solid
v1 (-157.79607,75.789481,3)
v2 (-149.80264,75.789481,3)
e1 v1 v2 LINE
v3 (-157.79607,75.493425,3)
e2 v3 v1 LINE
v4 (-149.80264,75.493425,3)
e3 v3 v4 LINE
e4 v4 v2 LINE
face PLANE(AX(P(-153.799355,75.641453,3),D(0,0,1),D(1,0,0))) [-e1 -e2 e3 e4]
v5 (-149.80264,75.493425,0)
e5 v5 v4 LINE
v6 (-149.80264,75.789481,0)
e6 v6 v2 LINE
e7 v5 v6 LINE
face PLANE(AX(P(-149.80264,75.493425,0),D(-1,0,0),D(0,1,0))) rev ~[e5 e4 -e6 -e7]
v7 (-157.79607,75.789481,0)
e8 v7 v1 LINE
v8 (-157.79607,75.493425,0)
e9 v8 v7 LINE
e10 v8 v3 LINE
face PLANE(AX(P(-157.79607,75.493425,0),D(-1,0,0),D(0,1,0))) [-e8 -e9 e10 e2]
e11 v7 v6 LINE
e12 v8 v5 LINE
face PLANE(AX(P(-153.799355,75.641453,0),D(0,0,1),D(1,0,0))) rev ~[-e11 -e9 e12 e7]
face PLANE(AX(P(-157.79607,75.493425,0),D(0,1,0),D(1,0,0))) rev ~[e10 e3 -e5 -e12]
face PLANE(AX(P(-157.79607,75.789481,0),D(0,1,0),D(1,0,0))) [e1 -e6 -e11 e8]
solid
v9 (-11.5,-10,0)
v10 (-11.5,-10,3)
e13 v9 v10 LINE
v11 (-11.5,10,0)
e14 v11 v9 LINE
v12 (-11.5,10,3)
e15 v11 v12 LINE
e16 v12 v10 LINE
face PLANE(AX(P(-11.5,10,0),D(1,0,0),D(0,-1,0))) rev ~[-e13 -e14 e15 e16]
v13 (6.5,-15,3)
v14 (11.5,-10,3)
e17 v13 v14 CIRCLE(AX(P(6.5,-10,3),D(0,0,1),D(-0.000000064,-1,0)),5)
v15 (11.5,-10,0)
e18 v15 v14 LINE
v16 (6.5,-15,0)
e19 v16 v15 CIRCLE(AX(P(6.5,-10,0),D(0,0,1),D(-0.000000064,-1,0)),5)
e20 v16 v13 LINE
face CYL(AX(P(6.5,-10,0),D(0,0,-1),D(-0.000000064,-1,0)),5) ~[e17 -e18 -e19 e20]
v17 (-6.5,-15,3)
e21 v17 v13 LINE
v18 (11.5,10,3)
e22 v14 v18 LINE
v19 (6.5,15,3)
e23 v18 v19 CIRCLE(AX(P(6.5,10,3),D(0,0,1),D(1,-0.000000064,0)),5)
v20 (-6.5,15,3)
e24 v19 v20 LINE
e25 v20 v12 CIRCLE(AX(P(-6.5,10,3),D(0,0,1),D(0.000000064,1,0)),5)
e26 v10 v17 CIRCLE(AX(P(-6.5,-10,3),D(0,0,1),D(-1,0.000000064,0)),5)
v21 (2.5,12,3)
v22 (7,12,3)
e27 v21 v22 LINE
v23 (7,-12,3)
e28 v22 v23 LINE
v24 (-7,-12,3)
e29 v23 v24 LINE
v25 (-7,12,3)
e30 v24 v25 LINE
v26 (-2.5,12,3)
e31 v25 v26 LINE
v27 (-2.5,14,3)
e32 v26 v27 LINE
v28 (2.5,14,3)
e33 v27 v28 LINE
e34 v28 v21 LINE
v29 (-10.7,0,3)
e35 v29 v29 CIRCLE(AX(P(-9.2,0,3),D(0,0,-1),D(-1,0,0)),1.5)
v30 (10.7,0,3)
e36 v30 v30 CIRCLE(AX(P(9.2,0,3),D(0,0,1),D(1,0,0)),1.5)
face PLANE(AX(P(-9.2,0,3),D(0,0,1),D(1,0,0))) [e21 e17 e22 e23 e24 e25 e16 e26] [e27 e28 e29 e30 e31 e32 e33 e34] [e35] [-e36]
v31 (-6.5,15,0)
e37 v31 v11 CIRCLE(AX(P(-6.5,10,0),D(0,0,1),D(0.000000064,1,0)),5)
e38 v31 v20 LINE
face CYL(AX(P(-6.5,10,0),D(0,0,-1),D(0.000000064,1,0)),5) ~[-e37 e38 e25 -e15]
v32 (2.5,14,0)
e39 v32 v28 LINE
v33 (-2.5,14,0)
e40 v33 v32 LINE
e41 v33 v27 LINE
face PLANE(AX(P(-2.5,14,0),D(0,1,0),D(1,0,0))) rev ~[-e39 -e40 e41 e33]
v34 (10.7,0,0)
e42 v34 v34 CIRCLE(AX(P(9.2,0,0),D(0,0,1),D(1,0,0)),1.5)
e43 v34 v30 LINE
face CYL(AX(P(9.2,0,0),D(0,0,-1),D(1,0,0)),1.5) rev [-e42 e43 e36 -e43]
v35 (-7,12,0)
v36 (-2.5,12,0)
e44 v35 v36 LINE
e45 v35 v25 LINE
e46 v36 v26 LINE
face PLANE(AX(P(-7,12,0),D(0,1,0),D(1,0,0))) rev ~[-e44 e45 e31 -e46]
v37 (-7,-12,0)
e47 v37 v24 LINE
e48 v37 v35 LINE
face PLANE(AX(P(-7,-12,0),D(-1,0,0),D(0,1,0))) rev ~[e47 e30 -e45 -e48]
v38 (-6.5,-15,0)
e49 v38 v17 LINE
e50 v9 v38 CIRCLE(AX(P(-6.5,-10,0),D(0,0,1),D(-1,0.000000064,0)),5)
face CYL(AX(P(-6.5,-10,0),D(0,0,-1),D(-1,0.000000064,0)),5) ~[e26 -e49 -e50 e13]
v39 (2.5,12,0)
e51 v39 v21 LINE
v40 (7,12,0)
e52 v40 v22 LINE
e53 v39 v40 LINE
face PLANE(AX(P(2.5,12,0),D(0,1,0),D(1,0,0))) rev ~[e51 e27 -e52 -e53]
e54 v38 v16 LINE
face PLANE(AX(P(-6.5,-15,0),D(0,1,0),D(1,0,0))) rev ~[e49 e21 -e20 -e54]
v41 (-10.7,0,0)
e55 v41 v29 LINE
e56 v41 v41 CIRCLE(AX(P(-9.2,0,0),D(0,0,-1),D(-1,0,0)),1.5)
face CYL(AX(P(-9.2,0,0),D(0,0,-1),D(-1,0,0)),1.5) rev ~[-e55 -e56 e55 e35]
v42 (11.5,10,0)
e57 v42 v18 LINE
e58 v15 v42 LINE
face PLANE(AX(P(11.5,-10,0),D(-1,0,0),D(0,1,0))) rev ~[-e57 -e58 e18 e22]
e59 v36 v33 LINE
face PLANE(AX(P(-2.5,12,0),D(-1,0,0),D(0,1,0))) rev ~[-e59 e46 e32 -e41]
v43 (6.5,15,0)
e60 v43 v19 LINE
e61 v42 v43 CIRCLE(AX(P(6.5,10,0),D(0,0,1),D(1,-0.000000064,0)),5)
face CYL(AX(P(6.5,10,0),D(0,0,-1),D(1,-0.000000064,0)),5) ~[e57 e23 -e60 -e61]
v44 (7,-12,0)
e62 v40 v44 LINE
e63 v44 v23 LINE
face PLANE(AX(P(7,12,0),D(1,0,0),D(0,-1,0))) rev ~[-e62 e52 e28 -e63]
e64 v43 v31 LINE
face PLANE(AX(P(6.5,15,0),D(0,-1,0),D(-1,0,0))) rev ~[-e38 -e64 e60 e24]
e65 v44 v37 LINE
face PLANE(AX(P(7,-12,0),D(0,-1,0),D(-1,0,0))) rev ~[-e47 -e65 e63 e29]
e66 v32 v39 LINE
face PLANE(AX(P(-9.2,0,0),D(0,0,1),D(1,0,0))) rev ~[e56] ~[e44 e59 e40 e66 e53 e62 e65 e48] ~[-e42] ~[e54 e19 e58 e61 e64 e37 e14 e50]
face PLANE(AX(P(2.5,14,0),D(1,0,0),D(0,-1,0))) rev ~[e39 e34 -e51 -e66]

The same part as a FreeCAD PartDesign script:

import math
import FreeCAD as App
import Part
import Sketcher

V = App.Vector

doc = App.newDocument("Part")
body = doc.addObject("PartDesign::Body", "Body")
body.AllowCompound = True

sketch1 = body.newObject("Sketcher::SketchObject", "Sketch")
sketch1.AttachmentSupport = (doc.getObject("XY_Plane"), [""])
sketch1.MapMode = "FlatFace"
sketch1.addGeometry(Part.LineSegment(V(-157.8, 75.79, 0), V(-157.8, 75.49, 0)), False)
sketch1.addGeometry(Part.LineSegment(V(-157.8, 75.49, 0), V(-149.8, 75.49, 0)), False)
sketch1.addGeometry(Part.LineSegment(V(-149.8, 75.49, 0), V(-149.8, 75.79, 0)), False)
sketch1.addGeometry(Part.LineSegment(V(-149.8, 75.79, 0), V(-157.8, 75.79, 0)), False)
sketch1.addGeometry(Part.ArcOfCircle(Part.Circle(V(6.5, 10, 0), V(0, 0, 1), 5), math.radians(0), math.radians(90)), False)
sketch1.addGeometry(Part.LineSegment(V(6.5, 15, 0), V(-6.5, 15, 0)), False)
sketch1.addGeometry(Part.ArcOfCircle(Part.Circle(V(-6.5, 10, 0), V(0, 0, 1), 5), math.radians(90), math.radians(180)), False)
sketch1.addGeometry(Part.LineSegment(V(-11.5, 10, 0), V(-11.5, -10, 0)), False)
sketch1.addGeometry(Part.ArcOfCircle(Part.Circle(V(-6.5, -10, 0), V(0, 0, 1), 5), math.radians(180), math.radians(270)), False)
sketch1.addGeometry(Part.LineSegment(V(-6.5, -15, 0), V(6.5, -15, 0)), False)
sketch1.addGeometry(Part.ArcOfCircle(Part.Circle(V(6.5, -10, 0), V(0, 0, 1), 5), math.radians(-90), math.radians(0)), False)
sketch1.addGeometry(Part.LineSegment(V(11.5, -10, 0), V(11.5, 10, 0)), False)
sketch1.addGeometry(Part.Circle(V(-9.2, 0, 0), V(0, 0, 1), 1.5), False)
sketch1.addGeometry(Part.Circle(V(9.2, 0, 0), V(0, 0, 1), 1.5), False)
sketch1.addGeometry(Part.LineSegment(V(2.5, 14, 0), V(2.5, 12, 0)), False)
sketch1.addGeometry(Part.LineSegment(V(2.5, 12, 0), V(7, 12, 0)), False)
sketch1.addGeometry(Part.LineSegment(V(7, 12, 0), V(7, -12, 0)), False)
sketch1.addGeometry(Part.LineSegment(V(7, -12, 0), V(-7, -12, 0)), False)
sketch1.addGeometry(Part.LineSegment(V(-7, -12, 0), V(-7, 12, 0)), False)
sketch1.addGeometry(Part.LineSegment(V(-7, 12, 0), V(-2.5, 12, 0)), False)
sketch1.addGeometry(Part.LineSegment(V(-2.5, 12, 0), V(-2.5, 14, 0)), False)
sketch1.addGeometry(Part.LineSegment(V(-2.5, 14, 0), V(2.5, 14, 0)), False)
sketch1.addConstraint(Sketcher.Constraint("Coincident", 0, 2, 1, 1))
sketch1.addConstraint(Sketcher.Constraint("Coincident", 1, 2, 2, 1))
sketch1.addConstraint(Sketcher.Constraint("Coincident", 2, 2, 3, 1))
sketch1.addConstraint(Sketcher.Constraint("Coincident", 3, 2, 0, 1))
sketch1.addConstraint(Sketcher.Constraint("Tangent", 4, 2, 5, 1))
sketch1.addConstraint(Sketcher.Constraint("Tangent", 5, 2, 6, 1))
sketch1.addConstraint(Sketcher.Constraint("Tangent", 6, 2, 7, 1))
sketch1.addConstraint(Sketcher.Constraint("Tangent", 7, 2, 8, 1))
sketch1.addConstraint(Sketcher.Constraint("Tangent", 8, 2, 9, 1))
sketch1.addConstraint(Sketcher.Constraint("Tangent", 9, 2, 10, 1))
sketch1.addConstraint(Sketcher.Constraint("Tangent", 10, 2, 11, 1))
sketch1.addConstraint(Sketcher.Constraint("Tangent", 11, 2, 4, 1))
sketch1.addConstraint(Sketcher.Constraint("Coincident", 14, 2, 15, 1))
sketch1.addConstraint(Sketcher.Constraint("Coincident", 15, 2, 16, 1))
sketch1.addConstraint(Sketcher.Constraint("Coincident", 16, 2, 17, 1))
sketch1.addConstraint(Sketcher.Constraint("Coincident", 17, 2, 18, 1))
sketch1.addConstraint(Sketcher.Constraint("Coincident", 18, 2, 19, 1))
sketch1.addConstraint(Sketcher.Constraint("Coincident", 19, 2, 20, 1))
sketch1.addConstraint(Sketcher.Constraint("Coincident", 20, 2, 21, 1))
sketch1.addConstraint(Sketcher.Constraint("Coincident", 21, 2, 14, 1))
sketch1.addConstraint(Sketcher.Constraint("Vertical", 0))
sketch1.addConstraint(Sketcher.Constraint("Horizontal", 1))
sketch1.addConstraint(Sketcher.Constraint("Vertical", 2))
sketch1.addConstraint(Sketcher.Constraint("Horizontal", 3))
sketch1.addConstraint(Sketcher.Constraint("Horizontal", 5))
sketch1.addConstraint(Sketcher.Constraint("Vertical", 7))
sketch1.addConstraint(Sketcher.Constraint("Horizontal", 9))
sketch1.addConstraint(Sketcher.Constraint("Vertical", 11))
sketch1.addConstraint(Sketcher.Constraint("Vertical", 14))
sketch1.addConstraint(Sketcher.Constraint("Horizontal", 15))
sketch1.addConstraint(Sketcher.Constraint("Vertical", 16))
sketch1.addConstraint(Sketcher.Constraint("Horizontal", 17))
sketch1.addConstraint(Sketcher.Constraint("Vertical", 18))
sketch1.addConstraint(Sketcher.Constraint("Horizontal", 19))
sketch1.addConstraint(Sketcher.Constraint("Vertical", 20))
sketch1.addConstraint(Sketcher.Constraint("Horizontal", 21))
sketch1.addConstraint(Sketcher.Constraint("Equal", 4, 6))
sketch1.addConstraint(Sketcher.Constraint("Equal", 6, 8))
sketch1.addConstraint(Sketcher.Constraint("Equal", 8, 10))
sketch1.addConstraint(Sketcher.Constraint("Equal", 12, 13))
sketch1.addConstraint(Sketcher.Constraint("Symmetric", 4, 3, 8, 3, -1, 1))
sketch1.addConstraint(Sketcher.Constraint("Symmetric", 12, 3, 13, 3, -1, 1))
sketch1.addConstraint(Sketcher.Constraint("Symmetric", 15, 2, 17, 2, -1, 1))
sketch1.addConstraint(Sketcher.Constraint("Symmetric", 14, 2, 19, 2, -2))
sketch1.addConstraint(Sketcher.Constraint("PointOnObject", 12, 3, -1))
sketch1.addConstraint(Sketcher.Constraint("Diameter", 12, 3.0))
sketch1.addConstraint(Sketcher.Constraint("Radius", 4, 5.0))
sketch1.addConstraint(Sketcher.Constraint("DistanceX", 5, 2, 5, 1, 13.0))
sketch1.addConstraint(Sketcher.Constraint("DistanceX", 17, 2, 17, 1, 14.0))
sketch1.addConstraint(Sketcher.Constraint("DistanceX", 21, 1, 21, 2, 5.0))
sketch1.addConstraint(Sketcher.Constraint("DistanceY", 7, 2, 7, 1, 20.0))
sketch1.addConstraint(Sketcher.Constraint("DistanceY", 14, 2, 14, 1, 2.0))
sketch1.addConstraint(Sketcher.Constraint("DistanceY", 16, 2, 16, 1, 24.0))
sketch1.addConstraint(Sketcher.Constraint("DistanceX", 12, 3, -1, 1, 9.2))
sketch1.addConstraint(Sketcher.Constraint("DistanceX", 1, 1, 1, 2, 7.99343))
sketch1.addConstraint(Sketcher.Constraint("DistanceY", 0, 2, 0, 1, 0.296056))
sketch1.addConstraint(Sketcher.Constraint("DistanceX", 0, 2, -1, 1, 157.79607))
sketch1.addConstraint(Sketcher.Constraint("DistanceY", -1, 1, 2, 2, 75.789481))
pad1 = body.newObject("PartDesign::Pad", "Pad")
pad1.Profile = sketch1
pad1.Length = 3

doc.recompute()
